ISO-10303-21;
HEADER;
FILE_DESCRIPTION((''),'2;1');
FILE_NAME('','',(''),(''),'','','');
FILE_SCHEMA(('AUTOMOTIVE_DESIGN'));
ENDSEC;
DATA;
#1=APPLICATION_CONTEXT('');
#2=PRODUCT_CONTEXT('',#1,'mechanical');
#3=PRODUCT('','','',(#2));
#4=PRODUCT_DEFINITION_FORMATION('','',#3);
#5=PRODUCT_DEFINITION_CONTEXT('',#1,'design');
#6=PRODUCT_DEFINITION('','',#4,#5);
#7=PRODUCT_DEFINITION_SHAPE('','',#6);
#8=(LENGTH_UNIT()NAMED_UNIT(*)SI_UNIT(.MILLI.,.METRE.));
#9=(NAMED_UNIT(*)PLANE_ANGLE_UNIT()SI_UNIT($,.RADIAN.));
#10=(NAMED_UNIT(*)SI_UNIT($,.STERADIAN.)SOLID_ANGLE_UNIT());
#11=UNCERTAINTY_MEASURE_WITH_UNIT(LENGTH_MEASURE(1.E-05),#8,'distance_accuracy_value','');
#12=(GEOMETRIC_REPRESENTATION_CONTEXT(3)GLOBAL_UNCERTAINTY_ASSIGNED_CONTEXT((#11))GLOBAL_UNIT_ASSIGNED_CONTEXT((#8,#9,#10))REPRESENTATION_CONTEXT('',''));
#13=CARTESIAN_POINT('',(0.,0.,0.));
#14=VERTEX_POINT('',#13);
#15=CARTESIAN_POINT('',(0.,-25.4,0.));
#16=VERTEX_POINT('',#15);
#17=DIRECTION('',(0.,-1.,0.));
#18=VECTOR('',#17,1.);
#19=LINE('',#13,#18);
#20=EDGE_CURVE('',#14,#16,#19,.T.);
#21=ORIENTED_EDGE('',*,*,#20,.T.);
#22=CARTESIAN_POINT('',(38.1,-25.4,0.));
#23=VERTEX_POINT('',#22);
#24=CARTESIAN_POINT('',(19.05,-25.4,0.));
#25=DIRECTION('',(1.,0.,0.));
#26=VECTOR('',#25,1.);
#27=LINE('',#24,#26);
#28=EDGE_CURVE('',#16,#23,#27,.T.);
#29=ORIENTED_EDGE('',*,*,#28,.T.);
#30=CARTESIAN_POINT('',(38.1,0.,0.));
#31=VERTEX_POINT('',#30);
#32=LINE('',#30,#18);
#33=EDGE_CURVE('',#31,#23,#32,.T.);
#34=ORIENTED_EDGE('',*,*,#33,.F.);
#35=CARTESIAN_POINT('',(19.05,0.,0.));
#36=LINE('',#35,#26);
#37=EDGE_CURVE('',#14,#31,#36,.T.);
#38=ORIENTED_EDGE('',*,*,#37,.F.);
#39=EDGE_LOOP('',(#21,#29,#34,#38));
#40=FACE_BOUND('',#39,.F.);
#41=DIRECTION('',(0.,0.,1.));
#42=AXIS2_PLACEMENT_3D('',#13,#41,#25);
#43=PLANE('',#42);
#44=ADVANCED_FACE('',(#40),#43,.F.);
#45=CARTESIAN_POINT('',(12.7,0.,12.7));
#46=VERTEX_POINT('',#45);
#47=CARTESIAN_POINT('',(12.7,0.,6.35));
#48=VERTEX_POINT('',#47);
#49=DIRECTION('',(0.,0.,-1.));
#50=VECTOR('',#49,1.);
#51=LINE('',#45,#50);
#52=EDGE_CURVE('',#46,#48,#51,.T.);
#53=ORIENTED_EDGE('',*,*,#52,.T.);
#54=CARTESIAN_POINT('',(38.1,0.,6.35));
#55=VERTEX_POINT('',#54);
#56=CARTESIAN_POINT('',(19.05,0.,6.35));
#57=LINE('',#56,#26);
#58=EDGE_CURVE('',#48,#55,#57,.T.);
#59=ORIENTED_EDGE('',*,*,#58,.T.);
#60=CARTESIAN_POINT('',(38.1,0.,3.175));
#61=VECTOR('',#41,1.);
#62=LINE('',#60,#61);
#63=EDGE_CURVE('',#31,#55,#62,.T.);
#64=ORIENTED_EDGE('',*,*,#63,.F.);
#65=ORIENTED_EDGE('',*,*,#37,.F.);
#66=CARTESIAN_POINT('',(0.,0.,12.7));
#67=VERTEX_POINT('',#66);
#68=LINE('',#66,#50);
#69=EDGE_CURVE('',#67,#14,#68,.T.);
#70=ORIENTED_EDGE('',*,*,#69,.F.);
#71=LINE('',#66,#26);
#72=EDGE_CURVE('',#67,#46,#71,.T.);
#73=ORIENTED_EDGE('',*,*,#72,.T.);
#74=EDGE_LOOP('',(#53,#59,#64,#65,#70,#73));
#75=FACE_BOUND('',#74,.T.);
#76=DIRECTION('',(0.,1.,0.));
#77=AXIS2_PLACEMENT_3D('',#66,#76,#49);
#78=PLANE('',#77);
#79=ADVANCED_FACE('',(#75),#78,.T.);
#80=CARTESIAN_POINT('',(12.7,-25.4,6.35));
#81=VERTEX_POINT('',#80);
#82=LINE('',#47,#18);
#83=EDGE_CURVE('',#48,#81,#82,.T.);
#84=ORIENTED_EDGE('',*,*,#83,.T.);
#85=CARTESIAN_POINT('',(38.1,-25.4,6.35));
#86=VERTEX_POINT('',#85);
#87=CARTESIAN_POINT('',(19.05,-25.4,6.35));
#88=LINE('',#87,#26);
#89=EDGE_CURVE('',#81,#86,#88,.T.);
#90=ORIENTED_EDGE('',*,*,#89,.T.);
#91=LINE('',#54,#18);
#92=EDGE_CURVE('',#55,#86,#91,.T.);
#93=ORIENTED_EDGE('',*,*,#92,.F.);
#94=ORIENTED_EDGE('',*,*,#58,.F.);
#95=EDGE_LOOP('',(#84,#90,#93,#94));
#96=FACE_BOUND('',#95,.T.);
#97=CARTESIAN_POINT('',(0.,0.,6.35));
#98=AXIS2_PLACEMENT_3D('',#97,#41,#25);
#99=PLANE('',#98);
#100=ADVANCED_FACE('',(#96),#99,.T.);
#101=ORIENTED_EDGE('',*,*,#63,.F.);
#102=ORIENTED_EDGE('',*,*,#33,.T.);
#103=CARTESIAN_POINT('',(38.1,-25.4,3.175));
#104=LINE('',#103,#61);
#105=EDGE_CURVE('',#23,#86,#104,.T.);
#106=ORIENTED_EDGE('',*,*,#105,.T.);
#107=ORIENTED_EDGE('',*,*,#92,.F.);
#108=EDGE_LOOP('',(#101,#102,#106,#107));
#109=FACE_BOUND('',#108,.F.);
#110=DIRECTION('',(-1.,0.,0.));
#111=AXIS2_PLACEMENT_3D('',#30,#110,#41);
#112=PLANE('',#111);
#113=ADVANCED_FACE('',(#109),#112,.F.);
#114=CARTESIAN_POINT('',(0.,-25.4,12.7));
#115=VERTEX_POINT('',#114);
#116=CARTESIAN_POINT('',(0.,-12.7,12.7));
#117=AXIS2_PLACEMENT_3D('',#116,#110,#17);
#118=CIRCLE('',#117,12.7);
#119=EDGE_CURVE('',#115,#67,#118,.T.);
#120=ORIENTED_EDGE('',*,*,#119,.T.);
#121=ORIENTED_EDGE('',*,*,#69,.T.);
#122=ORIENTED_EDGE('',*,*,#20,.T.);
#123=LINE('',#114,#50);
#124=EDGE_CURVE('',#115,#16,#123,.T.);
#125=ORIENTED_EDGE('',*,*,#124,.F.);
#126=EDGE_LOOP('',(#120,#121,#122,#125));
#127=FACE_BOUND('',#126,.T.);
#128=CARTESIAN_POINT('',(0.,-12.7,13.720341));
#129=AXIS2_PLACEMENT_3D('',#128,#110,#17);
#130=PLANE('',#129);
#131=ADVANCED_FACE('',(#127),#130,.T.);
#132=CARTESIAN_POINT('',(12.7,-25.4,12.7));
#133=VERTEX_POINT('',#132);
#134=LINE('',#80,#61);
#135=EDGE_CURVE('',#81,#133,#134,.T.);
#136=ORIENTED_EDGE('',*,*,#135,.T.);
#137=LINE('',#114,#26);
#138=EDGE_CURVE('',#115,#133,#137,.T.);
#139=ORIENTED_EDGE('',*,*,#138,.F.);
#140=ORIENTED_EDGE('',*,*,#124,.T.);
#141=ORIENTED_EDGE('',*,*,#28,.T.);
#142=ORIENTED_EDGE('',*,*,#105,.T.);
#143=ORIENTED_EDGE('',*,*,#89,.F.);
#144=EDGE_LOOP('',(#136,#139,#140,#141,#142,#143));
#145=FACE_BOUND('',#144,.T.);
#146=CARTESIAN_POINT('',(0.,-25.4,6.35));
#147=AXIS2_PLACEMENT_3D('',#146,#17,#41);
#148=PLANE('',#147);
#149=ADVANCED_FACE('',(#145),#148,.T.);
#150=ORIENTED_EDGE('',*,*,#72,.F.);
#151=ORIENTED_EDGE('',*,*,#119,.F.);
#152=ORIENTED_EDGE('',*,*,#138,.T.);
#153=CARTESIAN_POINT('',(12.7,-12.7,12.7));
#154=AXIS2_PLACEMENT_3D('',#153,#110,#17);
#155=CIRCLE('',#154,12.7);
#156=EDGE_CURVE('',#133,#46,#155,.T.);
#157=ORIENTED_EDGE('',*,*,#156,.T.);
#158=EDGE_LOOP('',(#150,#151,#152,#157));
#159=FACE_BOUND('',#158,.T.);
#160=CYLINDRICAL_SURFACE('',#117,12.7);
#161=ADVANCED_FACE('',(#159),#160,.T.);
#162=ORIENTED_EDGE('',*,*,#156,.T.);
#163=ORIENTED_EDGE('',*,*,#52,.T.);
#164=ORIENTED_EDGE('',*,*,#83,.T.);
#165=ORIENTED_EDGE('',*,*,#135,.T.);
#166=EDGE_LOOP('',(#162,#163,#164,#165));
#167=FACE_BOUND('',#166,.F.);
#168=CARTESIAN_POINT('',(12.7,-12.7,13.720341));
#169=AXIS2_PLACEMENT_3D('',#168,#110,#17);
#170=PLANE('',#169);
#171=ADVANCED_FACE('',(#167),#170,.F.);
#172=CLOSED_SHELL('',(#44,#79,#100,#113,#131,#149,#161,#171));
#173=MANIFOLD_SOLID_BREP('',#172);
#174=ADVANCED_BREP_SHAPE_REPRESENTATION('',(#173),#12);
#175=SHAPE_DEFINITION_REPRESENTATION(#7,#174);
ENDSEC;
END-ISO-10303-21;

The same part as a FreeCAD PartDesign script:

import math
import FreeCAD as App
import Part
import Sketcher
Q = App.Units.Quantity

doc = App.newDocument("Part")
body = doc.addObject("PartDesign::Body", "Body")

# Sketch on XZ plane
sketch1 = body.newObject("Sketcher::SketchObject", "Sketch")
sketch1.AttachmentSupport = (doc.getObject("XZ_Plane"), [""])
sketch1.MapMode = "FlatFace"
sketch1.addGeometry(Part.LineSegment(App.Vector(0, 6, 0), App.Vector(0, 0, 0)), False)
sketch1.addGeometry(Part.LineSegment(App.Vector(0, 0, 0), App.Vector(38, 0, 0)), False)
sketch1.addGeometry(Part.LineSegment(App.Vector(38, 0, 0), App.Vector(38, 6, 0)), False)
sketch1.addGeometry(Part.LineSegment(App.Vector(38, 6, 0), App.Vector(0, 6, 0)), False)
sketch1.addConstraint(Sketcher.Constraint("Coincident", 0, 2, 1, 1))
sketch1.addConstraint(Sketcher.Constraint("Coincident", 1, 2, 2, 1))
sketch1.addConstraint(Sketcher.Constraint("Coincident", 2, 2, 3, 1))
sketch1.addConstraint(Sketcher.Constraint("Coincident", 3, 2, 0, 1))
sketch1.addConstraint(Sketcher.Constraint("Vertical", 0))
sketch1.addConstraint(Sketcher.Constraint("Horizontal", 1))
sketch1.addConstraint(Sketcher.Constraint("Vertical", 2))
sketch1.addConstraint(Sketcher.Constraint("Horizontal", 3))
sketch1.addConstraint(Sketcher.Constraint("Coincident", 0, 2, -1, 1))
sketch1.addConstraint(Sketcher.Constraint("DistanceX", 1, 1, 1, 2, Q("1.5 in")))
sketch1.addConstraint(Sketcher.Constraint("DistanceY", 0, 2, 0, 1, Q("0.25 in")))
pad1 = body.newObject("PartDesign::Pad", "Pad")
pad1.Profile = sketch1
pad1.Length = Q("1 in")

# Sketch on YZ plane
sketch2 = body.newObject("Sketcher::SketchObject", "Sketch001")
sketch2.AttachmentSupport = (doc.getObject("YZ_Plane"), [""])
sketch2.MapMode = "FlatFace"
sketch2.addGeometry(Part.LineSegment(App.Vector(0, 6, 0), App.Vector(-25, 6, 0)), False)
sketch2.addGeometry(Part.LineSegment(App.Vector(-25, 6, 0), App.Vector(-25, 13, 0)), False)
sketch2.addGeometry(Part.ArcOfCircle(Part.Circle(App.Vector(-13, 13, 0), App.Vector(0, 0, 1), 13), math.radians(0), math.radians(180)), False)
sketch2.addGeometry(Part.LineSegment(App.Vector(0, 13, 0), App.Vector(0, 6, 0)), False)
sketch2.addConstraint(Sketcher.Constraint("Coincident", 0, 2, 1, 1))
sketch2.addConstraint(Sketcher.Constraint("Tangent", 1, 2, 2, 2))
sketch2.addConstraint(Sketcher.Constraint("Tangent", 2, 1, 3, 1))
sketch2.addConstraint(Sketcher.Constraint("Coincident", 3, 2, 0, 1))
sketch2.addConstraint(Sketcher.Constraint("Horizontal", 0))
sketch2.addConstraint(Sketcher.Constraint("Vertical", 1))
sketch2.addConstraint(Sketcher.Constraint("Vertical", 3))
sketch2.addConstraint(Sketcher.Constraint("PointOnObject", 2, 1, -2))
sketch2.addConstraint(Sketcher.Constraint("Radius", 2, Q("0.5 in")))
sketch2.addConstraint(Sketcher.Constraint("DistanceY", 1, 1, 1, 2, Q("0.25 in")))
sketch2.addConstraint(Sketcher.Constraint("DistanceY", -1, 1, 2, 3, Q("0.5 in")))
pad2 = body.newObject("PartDesign::Pad", "Pad001")
pad2.Profile = sketch2
pad2.Length = Q("0.5 in")

doc.recompute()
